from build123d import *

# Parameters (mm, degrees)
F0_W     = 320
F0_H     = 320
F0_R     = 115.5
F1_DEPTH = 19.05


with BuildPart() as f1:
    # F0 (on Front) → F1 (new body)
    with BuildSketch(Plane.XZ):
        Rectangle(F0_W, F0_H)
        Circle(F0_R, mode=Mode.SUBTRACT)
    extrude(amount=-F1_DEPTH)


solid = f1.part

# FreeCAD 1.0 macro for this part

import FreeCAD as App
import Part
import Sketcher
from FreeCAD import Vector


def add_polygon(sketch, points):
    """Adds a closed chain of lines whose ends are joined by coincident constraints."""
    first, n = sketch.GeometryCount, len(points)
    for a, b in zip(points, points[1:] + points[:1]):
        sketch.addGeometry(Part.LineSegment(App.Vector(*a, 0), App.Vector(*b, 0)), False)
    for i in range(n):
        sketch.addConstraint(Sketcher.Constraint("Coincident", first + i, 2, first + (i + 1) % n, 1))

doc = App.newDocument("Part")
body = doc.addObject("PartDesign::Body", "Body")

# Sketch on XZ plane
sketch1 = doc.addObject("Sketcher::SketchObject", "Sketch")
body.addObject(sketch1)
sketch1.AttachmentSupport = (doc.XZ_Plane, [""])
sketch1.MapMode = "FlatFace"
add_polygon(sketch1, [(-160, 160), (-160, -160), (160, -160), (160, 160)])  # lines 0-3
sketch1.addGeometry(Part.Circle(Vector(0, 0, 0), Vector(0, 0, 1), 116), False)  # 4
sketch1.addConstraint([
    Sketcher.Constraint("Vertical", 0),
    Sketcher.Constraint("Horizontal", 1),
    Sketcher.Constraint("Vertical", 2),
    Sketcher.Constraint("Horizontal", 3),
    Sketcher.Constraint("Coincident", 4, 3, -1, 1),
    Sketcher.Constraint("Symmetric", 0, 2, 2, 2, -1, 1),
    Sketcher.Constraint("Equal", 3, 0),
    Sketcher.Constraint("Diameter", 4, 231.0),
    Sketcher.Constraint("DistanceX", 1, 1, 1, 2, 320.0),
])
pad1 = doc.addObject("PartDesign::Pad", "Pad")
body.addObject(pad1)
pad1.Profile = sketch1
pad1.Length = 19.05
pad1.Reversed = True

doc.recompute()
